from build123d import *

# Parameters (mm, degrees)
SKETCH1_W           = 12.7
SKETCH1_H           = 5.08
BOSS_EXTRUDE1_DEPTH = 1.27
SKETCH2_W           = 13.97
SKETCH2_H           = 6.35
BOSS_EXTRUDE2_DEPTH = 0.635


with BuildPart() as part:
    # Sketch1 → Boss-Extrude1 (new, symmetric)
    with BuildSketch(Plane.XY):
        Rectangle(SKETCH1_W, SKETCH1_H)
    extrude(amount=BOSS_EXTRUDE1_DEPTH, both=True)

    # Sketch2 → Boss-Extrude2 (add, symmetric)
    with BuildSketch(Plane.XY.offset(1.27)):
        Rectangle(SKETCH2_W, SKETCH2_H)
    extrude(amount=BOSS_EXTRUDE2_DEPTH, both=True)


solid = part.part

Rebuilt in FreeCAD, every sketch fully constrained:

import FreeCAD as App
import Part
import Sketcher
from FreeCAD import Vector
Q = App.Units.Quantity

doc = App.newDocument("Part")
body = doc.addObject("PartDesign::Body", "Body")

# Sketch on XY plane
sketch1 = body.newObject("Sketcher::SketchObject", "Sketch")
sketch1.AttachmentSupport = (doc.getObject("XY_Plane"), [""])
sketch1.MapMode = "FlatFace"
sketch1.addGeometry([
    Part.LineSegment(Vector(-6.35, 2.54, 0), Vector(-6.35, -2.54, 0)),
    Part.LineSegment(Vector(-6.35, -2.54, 0), Vector(6.35, -2.54, 0)),
    Part.LineSegment(Vector(6.35, -2.54, 0), Vector(6.35, 2.54, 0)),
    Part.LineSegment(Vector(6.35, 2.54, 0), Vector(-6.35, 2.54, 0)),
], False)
sketch1.addConstraint([
    Sketcher.Constraint("Coincident", 0, 2, 1, 1),
    Sketcher.Constraint("Coincident", 1, 2, 2, 1),
    Sketcher.Constraint("Coincident", 2, 2, 3, 1),
    Sketcher.Constraint("Coincident", 3, 2, 0, 1),
    Sketcher.Constraint("Vertical", 0),
    Sketcher.Constraint("Horizontal", 1),
    Sketcher.Constraint("Vertical", 2),
    Sketcher.Constraint("Horizontal", 3),
    Sketcher.Constraint("Symmetric", 0, 2, 2, 2, -1, 1),
    Sketcher.Constraint("DistanceX", 1, 1, 1, 2, Q("0.5 in")),
    Sketcher.Constraint("DistanceY", 0, 2, 0, 1, Q("0.2 in")),
])
pad1 = body.newObject("PartDesign::Pad", "Pad")
pad1.Profile = sketch1
pad1.Length = Q("0.1 in")
pad1.Midplane = True

# Sketch on XY plane
sketch2 = body.newObject("Sketcher::SketchObject", "Sketch001")
sketch2.AttachmentSupport = (doc.getObject("XY_Plane"), [""])
sketch2.MapMode = "FlatFace"
sketch2.AttachmentOffset = App.Placement(Vector(0, 0, 0.05 * 25.4), App.Rotation())
sketch2.addGeometry([
    Part.LineSegment(Vector(-6.985, 3.175, 0), Vector(-6.985, -3.175, 0)),
    Part.LineSegment(Vector(-6.985, -3.175, 0), Vector(6.985, -3.175, 0)),
    Part.LineSegment(Vector(6.985, -3.175, 0), Vector(6.985, 3.175, 0)),
    Part.LineSegment(Vector(6.985, 3.175, 0), Vector(-6.985, 3.175, 0)),
], False)
sketch2.addConstraint([
    Sketcher.Constraint("Coincident", 0, 2, 1, 1),
    Sketcher.Constraint("Coincident", 1, 2, 2, 1),
    Sketcher.Constraint("Coincident", 2, 2, 3, 1),
    Sketcher.Constraint("Coincident", 3, 2, 0, 1),
    Sketcher.Constraint("Vertical", 0),
    Sketcher.Constraint("Horizontal", 1),
    Sketcher.Constraint("Vertical", 2),
    Sketcher.Constraint("Horizontal", 3),
    Sketcher.Constraint("Symmetric", 0, 2, 2, 2, -1, 1),
    Sketcher.Constraint("DistanceX", 1, 1, 1, 2, Q("0.55 in")),
    Sketcher.Constraint("DistanceY", 0, 2, 0, 1, Q("0.25 in")),
])
pad2 = body.newObject("PartDesign::Pad", "Pad001")
pad2.Profile = sketch2
pad2.Length = Q("0.05 in")
pad2.Midplane = True

doc.recompute()
